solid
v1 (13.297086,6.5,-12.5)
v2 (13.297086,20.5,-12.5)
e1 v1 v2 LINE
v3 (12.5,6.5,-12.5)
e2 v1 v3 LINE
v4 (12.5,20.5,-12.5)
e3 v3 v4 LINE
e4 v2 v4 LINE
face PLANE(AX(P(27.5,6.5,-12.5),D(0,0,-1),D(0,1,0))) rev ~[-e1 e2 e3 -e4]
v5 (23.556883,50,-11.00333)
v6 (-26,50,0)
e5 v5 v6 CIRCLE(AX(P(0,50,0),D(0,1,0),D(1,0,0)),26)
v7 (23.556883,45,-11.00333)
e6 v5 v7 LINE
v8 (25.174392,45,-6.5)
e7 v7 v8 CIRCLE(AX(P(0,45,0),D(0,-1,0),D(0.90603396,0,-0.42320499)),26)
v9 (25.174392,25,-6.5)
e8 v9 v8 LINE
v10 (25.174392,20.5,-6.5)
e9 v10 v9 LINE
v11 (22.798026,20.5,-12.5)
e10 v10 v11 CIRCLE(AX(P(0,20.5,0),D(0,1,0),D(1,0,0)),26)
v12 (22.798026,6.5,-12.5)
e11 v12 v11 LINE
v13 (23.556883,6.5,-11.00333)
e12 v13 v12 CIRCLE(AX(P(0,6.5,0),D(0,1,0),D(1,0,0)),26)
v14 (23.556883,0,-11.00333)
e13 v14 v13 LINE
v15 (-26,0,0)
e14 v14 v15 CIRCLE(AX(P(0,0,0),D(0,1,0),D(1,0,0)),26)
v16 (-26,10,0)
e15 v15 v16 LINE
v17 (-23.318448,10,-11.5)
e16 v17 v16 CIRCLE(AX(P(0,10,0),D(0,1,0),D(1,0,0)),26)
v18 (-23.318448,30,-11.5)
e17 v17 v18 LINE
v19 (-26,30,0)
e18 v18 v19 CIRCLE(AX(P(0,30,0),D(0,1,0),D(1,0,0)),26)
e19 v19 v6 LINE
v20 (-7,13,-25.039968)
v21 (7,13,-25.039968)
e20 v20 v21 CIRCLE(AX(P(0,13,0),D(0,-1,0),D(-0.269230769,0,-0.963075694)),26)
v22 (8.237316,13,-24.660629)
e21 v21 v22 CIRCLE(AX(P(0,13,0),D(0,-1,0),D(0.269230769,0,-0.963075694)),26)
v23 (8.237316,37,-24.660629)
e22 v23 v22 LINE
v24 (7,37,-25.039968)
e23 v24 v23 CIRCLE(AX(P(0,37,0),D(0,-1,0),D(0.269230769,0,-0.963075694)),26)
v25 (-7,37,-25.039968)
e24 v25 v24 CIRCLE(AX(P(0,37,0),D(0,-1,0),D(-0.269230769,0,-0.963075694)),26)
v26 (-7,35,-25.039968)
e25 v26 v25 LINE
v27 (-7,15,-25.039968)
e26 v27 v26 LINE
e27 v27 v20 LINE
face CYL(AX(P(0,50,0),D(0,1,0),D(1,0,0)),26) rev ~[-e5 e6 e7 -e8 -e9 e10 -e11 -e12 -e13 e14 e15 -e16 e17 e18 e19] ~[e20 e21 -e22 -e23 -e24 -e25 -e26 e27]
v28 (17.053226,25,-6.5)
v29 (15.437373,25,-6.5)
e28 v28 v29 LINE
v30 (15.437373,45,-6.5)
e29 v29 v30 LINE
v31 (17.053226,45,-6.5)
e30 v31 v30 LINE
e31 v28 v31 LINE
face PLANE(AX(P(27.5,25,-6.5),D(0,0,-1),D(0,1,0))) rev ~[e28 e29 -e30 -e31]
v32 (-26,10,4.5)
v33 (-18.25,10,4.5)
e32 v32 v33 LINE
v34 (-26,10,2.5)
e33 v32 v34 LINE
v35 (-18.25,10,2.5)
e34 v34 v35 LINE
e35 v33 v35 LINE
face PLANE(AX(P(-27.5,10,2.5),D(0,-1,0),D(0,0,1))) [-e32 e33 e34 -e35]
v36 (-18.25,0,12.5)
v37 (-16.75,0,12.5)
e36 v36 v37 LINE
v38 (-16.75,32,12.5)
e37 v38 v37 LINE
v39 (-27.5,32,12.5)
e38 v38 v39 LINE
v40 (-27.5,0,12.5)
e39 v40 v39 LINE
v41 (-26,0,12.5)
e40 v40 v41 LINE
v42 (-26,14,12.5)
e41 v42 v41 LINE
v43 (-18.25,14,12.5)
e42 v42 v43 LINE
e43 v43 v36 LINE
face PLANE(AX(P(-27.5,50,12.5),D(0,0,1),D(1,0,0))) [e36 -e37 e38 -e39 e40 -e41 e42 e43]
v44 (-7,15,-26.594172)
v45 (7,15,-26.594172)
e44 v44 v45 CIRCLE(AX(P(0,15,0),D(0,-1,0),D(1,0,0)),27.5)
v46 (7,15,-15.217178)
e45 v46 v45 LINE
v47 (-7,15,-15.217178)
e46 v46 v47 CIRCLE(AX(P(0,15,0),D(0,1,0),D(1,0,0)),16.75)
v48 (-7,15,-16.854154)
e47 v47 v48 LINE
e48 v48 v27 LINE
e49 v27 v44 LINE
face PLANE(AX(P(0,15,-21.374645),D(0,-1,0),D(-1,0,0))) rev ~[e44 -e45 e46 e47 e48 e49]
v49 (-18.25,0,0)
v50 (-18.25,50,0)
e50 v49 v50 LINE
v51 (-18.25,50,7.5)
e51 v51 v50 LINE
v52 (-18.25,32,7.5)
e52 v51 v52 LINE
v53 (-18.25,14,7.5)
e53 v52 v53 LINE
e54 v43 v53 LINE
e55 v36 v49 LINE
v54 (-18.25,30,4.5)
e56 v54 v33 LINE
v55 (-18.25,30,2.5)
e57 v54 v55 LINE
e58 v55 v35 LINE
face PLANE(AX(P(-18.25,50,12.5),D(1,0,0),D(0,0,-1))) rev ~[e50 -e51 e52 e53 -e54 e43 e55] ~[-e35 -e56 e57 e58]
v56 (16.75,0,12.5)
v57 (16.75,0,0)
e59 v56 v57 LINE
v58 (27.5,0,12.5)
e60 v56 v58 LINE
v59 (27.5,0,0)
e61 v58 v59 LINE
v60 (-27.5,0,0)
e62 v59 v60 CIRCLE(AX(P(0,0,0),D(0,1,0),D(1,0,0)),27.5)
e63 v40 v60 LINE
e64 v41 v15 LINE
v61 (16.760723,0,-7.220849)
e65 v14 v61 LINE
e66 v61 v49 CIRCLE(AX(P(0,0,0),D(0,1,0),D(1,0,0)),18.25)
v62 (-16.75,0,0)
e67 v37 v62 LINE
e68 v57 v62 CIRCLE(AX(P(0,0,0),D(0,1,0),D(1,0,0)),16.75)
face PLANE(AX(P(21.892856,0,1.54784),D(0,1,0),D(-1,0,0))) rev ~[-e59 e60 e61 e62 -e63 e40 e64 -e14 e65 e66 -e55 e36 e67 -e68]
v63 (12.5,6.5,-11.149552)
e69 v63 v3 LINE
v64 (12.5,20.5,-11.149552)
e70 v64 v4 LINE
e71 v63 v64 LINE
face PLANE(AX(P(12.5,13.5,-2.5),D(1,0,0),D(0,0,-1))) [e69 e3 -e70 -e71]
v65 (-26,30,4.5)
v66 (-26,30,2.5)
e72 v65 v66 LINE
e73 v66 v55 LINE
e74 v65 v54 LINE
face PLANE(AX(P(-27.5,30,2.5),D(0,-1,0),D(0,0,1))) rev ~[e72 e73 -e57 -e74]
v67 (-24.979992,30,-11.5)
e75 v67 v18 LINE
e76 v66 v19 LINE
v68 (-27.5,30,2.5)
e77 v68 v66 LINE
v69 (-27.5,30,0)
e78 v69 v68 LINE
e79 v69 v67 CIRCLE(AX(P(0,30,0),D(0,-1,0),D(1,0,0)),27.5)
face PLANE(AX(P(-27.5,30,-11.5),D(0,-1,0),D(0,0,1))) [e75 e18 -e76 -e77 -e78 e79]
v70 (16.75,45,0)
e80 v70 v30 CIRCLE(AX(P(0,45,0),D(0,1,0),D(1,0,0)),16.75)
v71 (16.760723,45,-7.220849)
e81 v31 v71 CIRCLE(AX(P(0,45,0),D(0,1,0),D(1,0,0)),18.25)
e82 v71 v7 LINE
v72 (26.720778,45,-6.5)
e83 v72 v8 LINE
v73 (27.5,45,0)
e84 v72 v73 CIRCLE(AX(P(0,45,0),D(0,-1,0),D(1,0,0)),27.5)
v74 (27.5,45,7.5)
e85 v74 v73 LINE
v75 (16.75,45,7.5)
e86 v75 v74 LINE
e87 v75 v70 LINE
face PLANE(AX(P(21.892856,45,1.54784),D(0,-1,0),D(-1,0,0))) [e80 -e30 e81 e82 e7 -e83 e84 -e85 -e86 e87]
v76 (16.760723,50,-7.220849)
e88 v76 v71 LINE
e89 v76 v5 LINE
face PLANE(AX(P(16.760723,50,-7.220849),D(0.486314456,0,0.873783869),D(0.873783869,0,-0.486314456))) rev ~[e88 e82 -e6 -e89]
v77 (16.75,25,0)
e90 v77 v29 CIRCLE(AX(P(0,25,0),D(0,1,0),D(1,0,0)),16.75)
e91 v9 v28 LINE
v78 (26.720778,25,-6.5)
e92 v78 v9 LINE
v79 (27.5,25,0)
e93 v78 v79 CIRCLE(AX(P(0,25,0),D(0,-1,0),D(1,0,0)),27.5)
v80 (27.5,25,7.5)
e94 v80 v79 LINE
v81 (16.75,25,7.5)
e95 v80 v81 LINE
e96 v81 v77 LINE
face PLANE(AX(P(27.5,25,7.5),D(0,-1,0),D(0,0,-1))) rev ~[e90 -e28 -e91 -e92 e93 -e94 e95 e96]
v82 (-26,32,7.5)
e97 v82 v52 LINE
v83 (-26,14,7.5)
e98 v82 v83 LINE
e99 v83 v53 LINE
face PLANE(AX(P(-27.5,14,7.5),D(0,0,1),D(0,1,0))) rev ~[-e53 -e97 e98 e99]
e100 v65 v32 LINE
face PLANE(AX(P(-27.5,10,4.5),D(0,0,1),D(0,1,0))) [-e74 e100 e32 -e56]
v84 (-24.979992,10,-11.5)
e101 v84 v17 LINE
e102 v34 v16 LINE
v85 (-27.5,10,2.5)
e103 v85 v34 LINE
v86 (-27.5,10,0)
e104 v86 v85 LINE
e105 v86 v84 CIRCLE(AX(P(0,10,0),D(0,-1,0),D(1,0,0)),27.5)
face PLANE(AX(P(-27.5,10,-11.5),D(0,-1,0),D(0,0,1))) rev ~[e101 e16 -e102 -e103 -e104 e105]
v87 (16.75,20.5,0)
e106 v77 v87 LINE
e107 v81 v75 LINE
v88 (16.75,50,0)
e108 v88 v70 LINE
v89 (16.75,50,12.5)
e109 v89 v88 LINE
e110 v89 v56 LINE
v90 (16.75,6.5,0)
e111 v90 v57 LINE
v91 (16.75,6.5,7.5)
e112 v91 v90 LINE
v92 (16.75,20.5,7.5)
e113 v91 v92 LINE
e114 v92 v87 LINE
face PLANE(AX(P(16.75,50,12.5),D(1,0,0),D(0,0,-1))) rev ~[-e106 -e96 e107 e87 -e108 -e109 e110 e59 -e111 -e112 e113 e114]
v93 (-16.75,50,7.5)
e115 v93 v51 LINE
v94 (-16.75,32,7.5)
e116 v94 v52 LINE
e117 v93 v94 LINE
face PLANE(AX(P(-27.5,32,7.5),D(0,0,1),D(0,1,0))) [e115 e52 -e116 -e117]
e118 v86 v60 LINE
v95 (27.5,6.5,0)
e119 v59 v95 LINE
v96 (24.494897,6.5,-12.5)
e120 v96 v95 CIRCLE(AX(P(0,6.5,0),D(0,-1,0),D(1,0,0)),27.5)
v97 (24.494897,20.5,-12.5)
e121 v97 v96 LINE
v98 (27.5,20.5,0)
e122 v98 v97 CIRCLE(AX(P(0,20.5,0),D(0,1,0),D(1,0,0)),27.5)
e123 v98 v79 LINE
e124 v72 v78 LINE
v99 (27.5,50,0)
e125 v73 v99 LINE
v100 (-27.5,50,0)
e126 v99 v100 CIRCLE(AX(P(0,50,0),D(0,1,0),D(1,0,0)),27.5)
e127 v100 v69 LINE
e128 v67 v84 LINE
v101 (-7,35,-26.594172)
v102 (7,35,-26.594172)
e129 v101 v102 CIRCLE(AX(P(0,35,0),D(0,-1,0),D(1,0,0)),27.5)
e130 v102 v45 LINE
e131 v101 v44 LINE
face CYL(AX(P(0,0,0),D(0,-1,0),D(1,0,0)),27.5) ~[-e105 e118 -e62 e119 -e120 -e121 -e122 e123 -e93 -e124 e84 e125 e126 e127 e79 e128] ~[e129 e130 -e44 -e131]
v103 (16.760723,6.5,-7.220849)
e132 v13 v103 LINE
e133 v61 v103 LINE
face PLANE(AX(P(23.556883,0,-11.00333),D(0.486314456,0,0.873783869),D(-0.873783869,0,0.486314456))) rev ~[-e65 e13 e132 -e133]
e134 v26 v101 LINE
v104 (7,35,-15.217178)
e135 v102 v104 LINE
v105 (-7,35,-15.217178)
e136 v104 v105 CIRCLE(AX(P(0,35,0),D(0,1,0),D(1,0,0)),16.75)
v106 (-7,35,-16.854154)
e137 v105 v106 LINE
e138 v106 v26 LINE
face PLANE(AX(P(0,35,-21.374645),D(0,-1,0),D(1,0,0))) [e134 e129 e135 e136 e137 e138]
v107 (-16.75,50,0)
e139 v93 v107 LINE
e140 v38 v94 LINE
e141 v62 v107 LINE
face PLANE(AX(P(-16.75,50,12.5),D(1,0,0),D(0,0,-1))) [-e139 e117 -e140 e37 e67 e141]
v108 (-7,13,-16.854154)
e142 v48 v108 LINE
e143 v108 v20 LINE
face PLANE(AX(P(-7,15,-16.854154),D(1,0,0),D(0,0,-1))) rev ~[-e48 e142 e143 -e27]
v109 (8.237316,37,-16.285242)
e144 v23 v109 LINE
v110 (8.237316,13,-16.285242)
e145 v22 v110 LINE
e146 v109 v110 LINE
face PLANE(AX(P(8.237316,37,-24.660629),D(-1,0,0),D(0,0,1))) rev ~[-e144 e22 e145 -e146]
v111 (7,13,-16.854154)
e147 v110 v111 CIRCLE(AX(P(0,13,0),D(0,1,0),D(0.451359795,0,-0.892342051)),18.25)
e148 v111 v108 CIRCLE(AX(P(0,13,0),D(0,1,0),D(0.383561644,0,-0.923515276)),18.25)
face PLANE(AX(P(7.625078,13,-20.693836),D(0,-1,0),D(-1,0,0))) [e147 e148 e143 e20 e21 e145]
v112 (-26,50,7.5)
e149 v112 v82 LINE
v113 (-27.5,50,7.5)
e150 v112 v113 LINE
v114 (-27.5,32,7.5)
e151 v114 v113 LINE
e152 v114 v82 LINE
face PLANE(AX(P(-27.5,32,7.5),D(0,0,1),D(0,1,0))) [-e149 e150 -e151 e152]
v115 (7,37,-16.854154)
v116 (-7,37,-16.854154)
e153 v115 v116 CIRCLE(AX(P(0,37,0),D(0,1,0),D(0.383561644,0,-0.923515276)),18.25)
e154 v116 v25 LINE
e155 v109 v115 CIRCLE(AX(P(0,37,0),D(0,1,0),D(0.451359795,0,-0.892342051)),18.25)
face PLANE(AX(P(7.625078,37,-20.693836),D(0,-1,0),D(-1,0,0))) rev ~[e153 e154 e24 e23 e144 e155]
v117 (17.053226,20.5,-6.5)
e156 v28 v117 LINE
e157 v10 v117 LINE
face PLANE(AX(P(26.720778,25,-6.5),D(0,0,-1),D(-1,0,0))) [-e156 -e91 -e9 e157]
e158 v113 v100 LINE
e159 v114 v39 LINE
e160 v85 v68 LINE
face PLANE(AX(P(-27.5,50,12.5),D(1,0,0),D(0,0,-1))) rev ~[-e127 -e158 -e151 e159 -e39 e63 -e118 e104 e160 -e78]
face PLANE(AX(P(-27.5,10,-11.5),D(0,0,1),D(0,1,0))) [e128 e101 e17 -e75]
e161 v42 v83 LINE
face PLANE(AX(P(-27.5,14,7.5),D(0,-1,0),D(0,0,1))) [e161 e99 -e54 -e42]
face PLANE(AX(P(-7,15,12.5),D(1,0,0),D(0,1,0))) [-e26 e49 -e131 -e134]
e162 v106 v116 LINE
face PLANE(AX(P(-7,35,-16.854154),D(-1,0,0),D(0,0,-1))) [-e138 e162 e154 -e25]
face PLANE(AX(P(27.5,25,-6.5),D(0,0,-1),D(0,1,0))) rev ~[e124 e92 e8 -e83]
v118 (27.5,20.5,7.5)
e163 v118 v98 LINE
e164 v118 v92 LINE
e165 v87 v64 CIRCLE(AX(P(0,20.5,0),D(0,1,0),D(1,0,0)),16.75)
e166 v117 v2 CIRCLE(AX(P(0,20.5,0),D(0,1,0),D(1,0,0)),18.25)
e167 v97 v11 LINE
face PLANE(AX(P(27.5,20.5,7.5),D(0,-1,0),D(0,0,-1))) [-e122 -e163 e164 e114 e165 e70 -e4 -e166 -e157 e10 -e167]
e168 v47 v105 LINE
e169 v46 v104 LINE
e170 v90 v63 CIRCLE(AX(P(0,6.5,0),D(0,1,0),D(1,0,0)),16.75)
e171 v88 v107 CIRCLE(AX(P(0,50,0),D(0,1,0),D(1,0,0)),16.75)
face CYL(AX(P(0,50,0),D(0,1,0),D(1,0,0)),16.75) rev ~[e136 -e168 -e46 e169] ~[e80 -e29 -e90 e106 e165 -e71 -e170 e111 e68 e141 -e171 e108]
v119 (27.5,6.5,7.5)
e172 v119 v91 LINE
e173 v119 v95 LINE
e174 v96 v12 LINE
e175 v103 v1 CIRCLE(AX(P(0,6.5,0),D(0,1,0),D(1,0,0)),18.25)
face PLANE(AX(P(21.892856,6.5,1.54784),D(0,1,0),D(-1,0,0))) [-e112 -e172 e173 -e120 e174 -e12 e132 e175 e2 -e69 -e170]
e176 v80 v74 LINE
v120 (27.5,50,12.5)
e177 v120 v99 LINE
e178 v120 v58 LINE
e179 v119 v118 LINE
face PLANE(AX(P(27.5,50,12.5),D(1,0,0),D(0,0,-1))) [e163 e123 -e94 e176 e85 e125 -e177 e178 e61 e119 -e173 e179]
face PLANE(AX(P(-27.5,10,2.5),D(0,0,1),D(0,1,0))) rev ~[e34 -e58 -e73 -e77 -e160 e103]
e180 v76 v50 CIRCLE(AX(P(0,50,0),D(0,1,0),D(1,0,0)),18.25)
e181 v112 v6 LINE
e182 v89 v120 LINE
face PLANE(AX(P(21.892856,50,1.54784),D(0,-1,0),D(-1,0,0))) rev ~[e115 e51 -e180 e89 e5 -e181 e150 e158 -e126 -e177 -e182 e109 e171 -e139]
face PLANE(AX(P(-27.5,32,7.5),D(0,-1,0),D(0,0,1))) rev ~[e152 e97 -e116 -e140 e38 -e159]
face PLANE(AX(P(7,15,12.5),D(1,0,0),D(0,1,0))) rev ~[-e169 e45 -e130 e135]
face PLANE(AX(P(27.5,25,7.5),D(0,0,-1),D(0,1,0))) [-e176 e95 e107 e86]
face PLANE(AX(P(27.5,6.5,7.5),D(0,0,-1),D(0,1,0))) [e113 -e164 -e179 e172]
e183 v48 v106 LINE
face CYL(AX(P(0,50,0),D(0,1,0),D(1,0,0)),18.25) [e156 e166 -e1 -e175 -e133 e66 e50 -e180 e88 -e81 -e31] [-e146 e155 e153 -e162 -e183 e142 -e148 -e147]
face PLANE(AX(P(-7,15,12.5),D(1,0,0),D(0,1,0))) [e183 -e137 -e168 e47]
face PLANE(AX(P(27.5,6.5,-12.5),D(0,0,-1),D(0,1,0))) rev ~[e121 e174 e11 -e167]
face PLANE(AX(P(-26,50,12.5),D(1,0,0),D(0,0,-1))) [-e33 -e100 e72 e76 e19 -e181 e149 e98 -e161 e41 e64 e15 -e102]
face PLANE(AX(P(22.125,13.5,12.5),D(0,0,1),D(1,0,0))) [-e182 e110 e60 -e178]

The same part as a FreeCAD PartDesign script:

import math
import FreeCAD as App
import Part
import Sketcher
from FreeCAD import Vector
Q = App.Units.Quantity

doc = App.newDocument("Part")
body = doc.addObject("PartDesign::Body", "Body")

sketch1 = doc.addObject("Sketcher::SketchObject", "Sketch")
body.addObject(sketch1)
sketch1.AttachmentSupport = (doc.XZ_Plane, [""])
sketch1.MapMode = "FlatFace"
sketch1.addGeometry(Part.Circle(Vector(0, 0, 0), Vector(0, 0, 1), 27.5), False)
sketch1.addConstraint(Sketcher.Constraint("Coincident", 0, 3, -1, 1))
sketch1.addConstraint(Sketcher.Constraint("Diameter", 0, Q("55 mm")))
pad1 = doc.addObject("PartDesign::Pad", "Pad")
body.addObject(pad1)
pad1.Profile = sketch1
pad1.Length = 50
pad1.Reversed = True

sketch2 = doc.addObject("Sketcher::SketchObject", "Sketch001")
body.addObject(sketch2)
sketch2.AttachmentSupport = (doc.XZ_Plane, [""])
sketch2.MapMode = "FlatFace"
sketch2.AttachmentOffset = App.Placement(Vector(0, 0, -50), App.Rotation())
sketch2.addGeometry(Part.Circle(Vector(0, 0, 0), Vector(0, 0, 1), 26), False)
sketch2.addConstraint(Sketcher.Constraint("Coincident", 0, 3, -1, 1))
sketch2.addConstraint(Sketcher.Constraint("Diameter", 0, Q("52 mm")))
pocket1 = doc.addObject("PartDesign::Pocket", "Pocket")
body.addObject(pocket1)
pocket1.Profile = sketch2
pocket1.Type = "ThroughAll"
pocket1.Reversed = True
body2 = doc.addObject("PartDesign::Body", "Body001")

sketch3 = doc.addObject("Sketcher::SketchObject", "Sketch002")
body2.addObject(sketch3)
sketch3.AttachmentSupport = (doc.getObject("XZ_Plane001"), [""])
sketch3.MapMode = "FlatFace"
sketch3.AttachmentOffset = App.Placement(Vector(0, 0, -50), App.Rotation())
sketch3.addGeometry(Part.Circle(Vector(0, 0, 0), Vector(0, 0, 1), 18.25), False)
sketch3.addConstraint(Sketcher.Constraint("Coincident", 0, 3, -1, 1))
sketch3.addConstraint(Sketcher.Constraint("Diameter", 0, Q("36.5 mm")))
pad2 = doc.addObject("PartDesign::Pad", "Pad001")
body2.addObject(pad2)
pad2.Profile = sketch3
pad2.Length = 50

sketch4 = doc.addObject("Sketcher::SketchObject", "Sketch003")
body2.addObject(sketch4)
sketch4.AttachmentSupport = (doc.getObject("XZ_Plane001"), [""])
sketch4.MapMode = "FlatFace"
sketch4.AttachmentOffset = App.Placement(Vector(0, 0, -50), App.Rotation())
sketch4.addGeometry(Part.Circle(Vector(0, 0, 0), Vector(0, 0, 1), 16.75), False)
sketch4.addConstraint(Sketcher.Constraint("Coincident", 0, 3, -1, 1))
sketch4.addConstraint(Sketcher.Constraint("Diameter", 0, Q("33.5 mm")))
pocket2 = doc.addObject("PartDesign::Pocket", "Pocket001")
body2.addObject(pocket2)
pocket2.Profile = sketch4
pocket2.Type = "ThroughAll"
pocket2.Reversed = True
body3 = doc.addObject("PartDesign::Body", "Body002")

sketch5 = doc.addObject("Sketcher::SketchObject", "Sketch004")
body3.addObject(sketch5)
sketch5.AttachmentSupport = (doc.getObject("XZ_Plane002"), [""])
sketch5.MapMode = "FlatFace"
sketch5.AttachmentOffset = App.Placement(Vector(0, 0, -50), App.Rotation())
sketch5.addGeometry(Part.LineSegment(Vector(-30.457731, 0, 0), Vector(-30.457731, 28.516087, 0)), False)
sketch5.addGeometry(Part.LineSegment(Vector(-30.457731, 28.516087, 0), Vector(29.503462, 28.516087, 0)), False)
sketch5.addGeometry(Part.LineSegment(Vector(29.503462, 28.516087, 0), Vector(29.503462, 0, 0)), False)
sketch5.addGeometry(Part.LineSegment(Vector(29.503462, 0, 0), Vector(-30.457731, 0, 0)), False)
sketch5.addConstraint(Sketcher.Constraint("Coincident", 0, 2, 1, 1))
sketch5.addConstraint(Sketcher.Constraint("Coincident", 1, 2, 2, 1))
sketch5.addConstraint(Sketcher.Constraint("Coincident", 2, 2, 3, 1))
sketch5.addConstraint(Sketcher.Constraint("Coincident", 3, 2, 0, 1))
sketch5.addConstraint(Sketcher.Constraint("Vertical", 0))
sketch5.addConstraint(Sketcher.Constraint("Horizontal", 1))
sketch5.addConstraint(Sketcher.Constraint("Vertical", 2))
sketch5.addConstraint(Sketcher.Constraint("Horizontal", 3))
sketch5.addConstraint(Sketcher.Constraint("PointOnObject", 2, 2, -1))
sketch5.addConstraint(Sketcher.Constraint("DistanceX", 1, 1, 1, 2, Q("59.961193 mm")))
sketch5.addConstraint(Sketcher.Constraint("DistanceY", 0, 1, 0, 2, Q("28.516087 mm")))
sketch5.addConstraint(Sketcher.Constraint("DistanceX", 0, 2, -1, 1, Q("30.457731 mm")))
pad3 = doc.addObject("PartDesign::Pad", "Pad002")
body3.addObject(pad3)
pad3.Profile = sketch5
pad3.Length = 51
doc.recompute()

body4 = doc.addObject("PartDesign::Body", "Body003")
body4.BaseFeature = body3
boolean = doc.addObject("PartDesign::Boolean", "Boolean")
body.addObject(boolean)
boolean.Type = "Cut"
boolean.addObjects([body4])
doc.recompute()

boolean2 = doc.addObject("PartDesign::Boolean", "Boolean001")
body2.addObject(boolean2)
boolean2.Type = "Cut"
boolean2.addObjects([body3])
body.AllowCompound = True
doc.recompute()

boolean3 = doc.addObject("PartDesign::Boolean", "Boolean002")
body.addObject(boolean3)
boolean3.Type = "Fuse"
boolean3.addObjects([body2])

sketch6 = doc.addObject("Sketcher::SketchObject", "Sketch005")
body.addObject(sketch6)
sketch6.AttachmentSupport = (doc.XZ_Plane, [""])
sketch6.MapMode = "FlatFace"
sketch6.AttachmentOffset = App.Placement(Vector(0, 0, -50), App.Rotation())
sketch6.addGeometry(Part.LineSegment(Vector(-27.5, 0, 0), Vector(-27.5, 12.5, 0)), False)
sketch6.addGeometry(Part.LineSegment(Vector(-27.5, 12.5, 0), Vector(-26, 12.5, 0)), False)
sketch6.addGeometry(Part.LineSegment(Vector(-26, 12.5, 0), Vector(-26, 0, 0)), False)
sketch6.addGeometry(Part.LineSegment(Vector(-26, 0, 0), Vector(-27.5, 0, 0)), False)
sketch6.addGeometry(Part.LineSegment(Vector(-18.25, 0, 0), Vector(-18.25, 12.5, 0)), False)
sketch6.addGeometry(Part.LineSegment(Vector(-18.25, 12.5, 0), Vector(-16.75, 12.5, 0)), False)
sketch6.addGeometry(Part.LineSegment(Vector(-16.75, 12.5, 0), Vector(-16.75, 0, 0)), False)
sketch6.addGeometry(Part.LineSegment(Vector(-16.75, 0, 0), Vector(-18.25, 0, 0)), False)
sketch6.addGeometry(Part.LineSegment(Vector(16.75, 0, 0), Vector(16.75, 12.5, 0)), False)
sketch6.addGeometry(Part.LineSegment(Vector(16.75, 12.5, 0), Vector(18.25, 12.5, 0)), False)
sketch6.addGeometry(Part.LineSegment(Vector(18.25, 12.5, 0), Vector(18.25, 0, 0)), False)
sketch6.addGeometry(Part.LineSegment(Vector(18.25, 0, 0), Vector(16.75, 0, 0)), False)
sketch6.addGeometry(Part.LineSegment(Vector(26, 0, 0), Vector(26, 12.5, 0)), False)
sketch6.addGeometry(Part.LineSegment(Vector(26, 12.5, 0), Vector(27.5, 12.5, 0)), False)
sketch6.addGeometry(Part.LineSegment(Vector(27.5, 12.5, 0), Vector(27.5, 0, 0)), False)
sketch6.addGeometry(Part.LineSegment(Vector(27.5, 0, 0), Vector(26, 0, 0)), False)
sketch6.addConstraint(Sketcher.Constraint("Coincident", 0, 2, 1, 1))
sketch6.addConstraint(Sketcher.Constraint("Coincident", 1, 2, 2, 1))
sketch6.addConstraint(Sketcher.Constraint("Coincident", 2, 2, 3, 1))
sketch6.addConstraint(Sketcher.Constraint("Coincident", 3, 2, 0, 1))
sketch6.addConstraint(Sketcher.Constraint("Coincident", 4, 2, 5, 1))
sketch6.addConstraint(Sketcher.Constraint("Coincident", 5, 2, 6, 1))
sketch6.addConstraint(Sketcher.Constraint("Coincident", 6, 2, 7, 1))
sketch6.addConstraint(Sketcher.Constraint("Coincident", 7, 2, 4, 1))
sketch6.addConstraint(Sketcher.Constraint("Coincident", 8, 2, 9, 1))
sketch6.addConstraint(Sketcher.Constraint("Coincident", 9, 2, 10, 1))
sketch6.addConstraint(Sketcher.Constraint("Coincident", 10, 2, 11, 1))
sketch6.addConstraint(Sketcher.Constraint("Coincident", 11, 2, 8, 1))
sketch6.addConstraint(Sketcher.Constraint("Coincident", 12, 2, 13, 1))
sketch6.addConstraint(Sketcher.Constraint("Coincident", 13, 2, 14, 1))
sketch6.addConstraint(Sketcher.Constraint("Coincident", 14, 2, 15, 1))
sketch6.addConstraint(Sketcher.Constraint("Coincident", 15, 2, 12, 1))
sketch6.addConstraint(Sketcher.Constraint("Vertical", 0))
sketch6.addConstraint(Sketcher.Constraint("Horizontal", 1))
sketch6.addConstraint(Sketcher.Constraint("Vertical", 2))
sketch6.addConstraint(Sketcher.Constraint("Horizontal", 3))
sketch6.addConstraint(Sketcher.Constraint("Vertical", 4))
sketch6.addConstraint(Sketcher.Constraint("Horizontal", 5))
sketch6.addConstraint(Sketcher.Constraint("Vertical", 6))
sketch6.addConstraint(Sketcher.Constraint("Horizontal", 7))
sketch6.addConstraint(Sketcher.Constraint("Vertical", 8))
sketch6.addConstraint(Sketcher.Constraint("Horizontal", 9))
sketch6.addConstraint(Sketcher.Constraint("Vertical", 10))
sketch6.addConstraint(Sketcher.Constraint("Horizontal", 11))
sketch6.addConstraint(Sketcher.Constraint("Vertical", 12))
sketch6.addConstraint(Sketcher.Constraint("Horizontal", 13))
sketch6.addConstraint(Sketcher.Constraint("Vertical", 14))
sketch6.addConstraint(Sketcher.Constraint("Horizontal", 15))
sketch6.addConstraint(Sketcher.Constraint("Symmetric", 7, 2, 10, 2, -1, 1))
sketch6.addConstraint(Sketcher.Constraint("Symmetric", 3, 2, 14, 2, -1, 1))
sketch6.addConstraint(Sketcher.Constraint("Symmetric", 5, 2, 8, 2, -2))
sketch6.addConstraint(Sketcher.Constraint("Symmetric", 1, 2, 12, 2, -2))
sketch6.addConstraint(Sketcher.Constraint("PointOnObject", 2, 2, -1))
sketch6.addConstraint(Sketcher.Constraint("PointOnObject", 6, 2, -1))
sketch6.addConstraint(Sketcher.Constraint("Horizontal", 1, 2, 4, 2))
sketch6.addConstraint(Sketcher.Constraint("Equal", 3, 5))
sketch6.addConstraint(Sketcher.Constraint("DistanceX", 1, 1, 1, 2, Q("1.5 mm")))
sketch6.addConstraint(Sketcher.Constraint("DistanceY", 0, 1, 0, 2, Q("12.5 mm")))
sketch6.addConstraint(Sketcher.Constraint("DistanceX", 1, 2, -1, 1, Q("26 mm")))
sketch6.addConstraint(Sketcher.Constraint("DistanceX", 4, 2, 8, 2, Q("35 mm")))
pad4 = doc.addObject("PartDesign::Pad", "Pad003")
body.addObject(pad4)
pad4.Profile = sketch6
pad4.Length = 50

sketch7 = doc.addObject("Sketcher::SketchObject", "Sketch006")
body.addObject(sketch7)
sketch7.AttachmentSupport = (doc.XZ_Plane, [""])
sketch7.MapMode = "FlatFace"
sketch7.AttachmentOffset = App.Placement(Vector(0, 0, -50), App.Rotation())
sketch7.addGeometry(Part.LineSegment(Vector(23.556883, -11.00333, 0), Vector(16.760723, -7.220849, 0)), False)
sketch7.addGeometry(Part.ArcOfCircle(Part.Circle(Vector(0, 0, 0), Vector(0, 0, 1), 18.25), math.radians(-23.307327), math.radians(0)), False)
sketch7.addGeometry(Part.LineSegment(Vector(18.25, 0, 0), Vector(18.25, 12.5, 0)), False)
sketch7.addGeometry(Part.LineSegment(Vector(18.25, 12.5, 0), Vector(26, 12.5, 0)), False)
sketch7.addGeometry(Part.LineSegment(Vector(26, 12.5, 0), Vector(26, 0, 0)), False)
sketch7.addGeometry(Part.ArcOfCircle(Part.Circle(Vector(0, 0, 0), Vector(0, 0, 1), 26), math.radians(-25.037098), math.radians(0)), False)
sketch7.addConstraint(Sketcher.Constraint("Coincident", 0, 2, 1, 1))
sketch7.addConstraint(Sketcher.Constraint("Tangent", 1, 2, 2, 1))
sketch7.addConstraint(Sketcher.Constraint("Coincident", 2, 2, 3, 1))
sketch7.addConstraint(Sketcher.Constraint("Coincident", 3, 2, 4, 1))
sketch7.addConstraint(Sketcher.Constraint("Tangent", 4, 2, 5, 2))
sketch7.addConstraint(Sketcher.Constraint("Coincident", 5, 1, 0, 1))
sketch7.addConstraint(Sketcher.Constraint("Vertical", 2))
sketch7.addConstraint(Sketcher.Constraint("Horizontal", 3))
sketch7.addConstraint(Sketcher.Constraint("Vertical", 4))
sketch7.addConstraint(Sketcher.Constraint("Coincident", 1, 3, -1, 1))
sketch7.addConstraint(Sketcher.Constraint("Coincident", 5, 3, -1, 1))
sketch7.addConstraint(Sketcher.Constraint("Radius", 5, Q("26 mm")))
sketch7.addConstraint(Sketcher.Constraint("Radius", 1, Q("18.25 mm")))
sketch7.addConstraint(Sketcher.Constraint("DistanceY", 2, 1, 2, 2, Q("12.5 mm")))
sketch7.addConstraint(Sketcher.Constraint("Distance", 0, Q("7.77785 mm")))
sketch7.addConstraint(Sketcher.Constraint("DistanceY", 0, 2, -1, 1, Q("7.220849 mm")))
pad5 = doc.addObject("PartDesign::Pad", "Pad004")
body.addObject(pad5)
pad5.Profile = sketch7
pad5.Length = 5

sketch8 = doc.addObject("Sketcher::SketchObject", "Sketch007")
body.addObject(sketch8)
sketch8.AttachmentSupport = (doc.XZ_Plane, [""])
sketch8.MapMode = "FlatFace"
sketch8.addGeometry(Part.LineSegment(Vector(18.25, 12.5, 0), Vector(18.25, 0, 0)), False)
sketch8.addGeometry(Part.ArcOfCircle(Part.Circle(Vector(0, 0, 0), Vector(0, 0, 1), 18.25), math.radians(-23.307327), math.radians(0)), False)
sketch8.addGeometry(Part.LineSegment(Vector(16.760723, -7.220849, 0), Vector(23.556883, -11.00333, 0)), False)
sketch8.addGeometry(Part.ArcOfCircle(Part.Circle(Vector(0, 0, 0), Vector(0, 0, 1), 26), math.radians(-25.037098), math.radians(0)), False)
sketch8.addGeometry(Part.LineSegment(Vector(26, 0, 0), Vector(26, 12.5, 0)), False)
sketch8.addGeometry(Part.LineSegment(Vector(26, 12.5, 0), Vector(18.25, 12.5, 0)), False)
sketch8.addConstraint(Sketcher.Constraint("Tangent", 0, 2, 1, 2))
sketch8.addConstraint(Sketcher.Constraint("Coincident", 1, 1, 2, 1))
sketch8.addConstraint(Sketcher.Constraint("Coincident", 2, 2, 3, 1))
sketch8.addConstraint(Sketcher.Constraint("Tangent", 3, 2, 4, 1))
sketch8.addConstraint(Sketcher.Constraint("Coincident", 4, 2, 5, 1))
sketch8.addConstraint(Sketcher.Constraint("Coincident", 5, 2, 0, 1))
sketch8.addConstraint(Sketcher.Constraint("Vertical", 0))
sketch8.addConstraint(Sketcher.Constraint("Vertical", 4))
sketch8.addConstraint(Sketcher.Constraint("Horizontal", 5))
sketch8.addConstraint(Sketcher.Constraint("Coincident", 1, 3, -1, 1))
sketch8.addConstraint(Sketcher.Constraint("Coincident", 3, 3, -1, 1))
sketch8.addConstraint(Sketcher.Constraint("Radius", 3, Q("26 mm")))
sketch8.addConstraint(Sketcher.Constraint("Radius", 1, Q("18.25 mm")))
sketch8.addConstraint(Sketcher.Constraint("DistanceY", 0, 2, 0, 1, Q("12.5 mm")))
sketch8.addConstraint(Sketcher.Constraint("Distance", 2, Q("7.77785 mm")))
sketch8.addConstraint(Sketcher.Constraint("DistanceY", 1, 1, -1, 1, Q("7.220849 mm")))
pad6 = doc.addObject("PartDesign::Pad", "Pad005")
body.addObject(pad6)
pad6.Profile = sketch8
pad6.Length = 6.5
pad6.Reversed = True

sketch9 = doc.addObject("Sketcher::SketchObject", "Sketch008")
body.addObject(sketch9)
sketch9.AttachmentSupport = (doc.YZ_Plane, [""])
sketch9.MapMode = "FlatFace"
sketch9.AttachmentOffset = App.Placement(Vector(0, 0, 27.5), App.Rotation())
sketch9.addGeometry(Part.LineSegment(Vector(45, 7.5, 0), Vector(25, 7.5, 0)), False)
sketch9.addGeometry(Part.LineSegment(Vector(25, 7.5, 0), Vector(25, -6.5, 0)), False)
sketch9.addGeometry(Part.LineSegment(Vector(25, -6.5, 0), Vector(45, -6.5, 0)), False)
sketch9.addGeometry(Part.LineSegment(Vector(45, -6.5, 0), Vector(45, 7.5, 0)), False)
sketch9.addGeometry(Part.LineSegment(Vector(20.5, 7.5, 0), Vector(6.5, 7.5, 0)), False)
sketch9.addGeometry(Part.LineSegment(Vector(6.5, 7.5, 0), Vector(6.5, -12.5, 0)), False)
sketch9.addGeometry(Part.LineSegment(Vector(6.5, -12.5, 0), Vector(20.5, -12.5, 0)), False)
sketch9.addGeometry(Part.LineSegment(Vector(20.5, -12.5, 0), Vector(20.5, 7.5, 0)), False)
sketch9.addConstraint(Sketcher.Constraint("Coincident", 0, 2, 1, 1))
sketch9.addConstraint(Sketcher.Constraint("Coincident", 1, 2, 2, 1))
sketch9.addConstraint(Sketcher.Constraint("Coincident", 2, 2, 3, 1))
sketch9.addConstraint(Sketcher.Constraint("Coincident", 3, 2, 0, 1))
sketch9.addConstraint(Sketcher.Constraint("Coincident", 4, 2, 5, 1))
sketch9.addConstraint(Sketcher.Constraint("Coincident", 5, 2, 6, 1))
sketch9.addConstraint(Sketcher.Constraint("Coincident", 6, 2, 7, 1))
sketch9.addConstraint(Sketcher.Constraint("Coincident", 7, 2, 4, 1))
sketch9.addConstraint(Sketcher.Constraint("Horizontal", 0))
sketch9.addConstraint(Sketcher.Constraint("Vertical", 1))
sketch9.addConstraint(Sketcher.Constraint("Horizontal", 2))
sketch9.addConstraint(Sketcher.Constraint("Vertical", 3))
sketch9.addConstraint(Sketcher.Constraint("Horizontal", 4))
sketch9.addConstraint(Sketcher.Constraint("Vertical", 5))
sketch9.addConstraint(Sketcher.Constraint("Horizontal", 6))
sketch9.addConstraint(Sketcher.Constraint("Vertical", 7))
sketch9.addConstraint(Sketcher.Constraint("Horizontal", 3, 2, 4, 2))
sketch9.addConstraint(Sketcher.Constraint("Equal", 6, 1))
sketch9.addConstraint(Sketcher.Constraint("Equal", 2, 5))
sketch9.addConstraint(Sketcher.Constraint("DistanceX", 0, 2, 0, 1, Q("20 mm")))
sketch9.addConstraint(Sketcher.Constraint("DistanceX", 4, 2, 4, 1, Q("14 mm")))
sketch9.addConstraint(Sketcher.Constraint("DistanceX", -1, 1, 0, 2, Q("25 mm")))
sketch9.addConstraint(Sketcher.Constraint("DistanceY", -1, 1, 0, 2, Q("7.5 mm")))
sketch9.addConstraint(Sketcher.Constraint("DistanceX", -1, 1, 4, 2, Q("6.5 mm")))
pocket3 = doc.addObject("PartDesign::Pocket", "Pocket002")
body.addObject(pocket3)
pocket3.Profile = sketch9
pocket3.Length = 15

sketch10 = doc.addObject("Sketcher::SketchObject", "Sketch009")
body.addObject(sketch10)
sketch10.AttachmentSupport = (doc.XY_Plane, [""])
sketch10.MapMode = "FlatFace"
sketch10.AttachmentOffset = App.Placement(Vector(0, 0, 12.5), App.Rotation())
sketch10.addGeometry(Part.LineSegment(Vector(-7, 35, 0), Vector(-7, 15, 0)), False)
sketch10.addGeometry(Part.LineSegment(Vector(-7, 15, 0), Vector(7, 15, 0)), False)
sketch10.addGeometry(Part.LineSegment(Vector(7, 15, 0), Vector(7, 35, 0)), False)
sketch10.addGeometry(Part.LineSegment(Vector(7, 35, 0), Vector(-7, 35, 0)), False)
sketch10.addConstraint(Sketcher.Constraint("Coincident", 0, 2, 1, 1))
sketch10.addConstraint(Sketcher.Constraint("Coincident", 1, 2, 2, 1))
sketch10.addConstraint(Sketcher.Constraint("Coincident", 2, 2, 3, 1))
sketch10.addConstraint(Sketcher.Constraint("Coincident", 3, 2, 0, 1))
sketch10.addConstraint(Sketcher.Constraint("Vertical", 0))
sketch10.addConstraint(Sketcher.Constraint("Horizontal", 1))
sketch10.addConstraint(Sketcher.Constraint("Vertical", 2))
sketch10.addConstraint(Sketcher.Constraint("Horizontal", 3))
sketch10.addConstraint(Sketcher.Constraint("DistanceX", 1, 1, 1, 2, Q("14 mm")))
sketch10.addConstraint(Sketcher.Constraint("DistanceY", 0, 2, 0, 1, Q("20 mm")))
sketch10.addConstraint(Sketcher.Constraint("DistanceX", 0, 2, -1, 1, Q("7 mm")))
sketch10.addConstraint(Sketcher.Constraint("DistanceY", -1, 1, 0, 2, Q("15 mm")))
pocket4 = doc.addObject("PartDesign::Pocket", "Pocket003")
body.addObject(pocket4)
pocket4.Profile = sketch10
pocket4.Length = 45

sketch11 = doc.addObject("Sketcher::SketchObject", "Sketch010")
body.addObject(sketch11)
sketch11.AttachmentSupport = (doc.YZ_Plane, [""])
sketch11.MapMode = "FlatFace"
sketch11.AttachmentOffset = App.Placement(Vector(0, 0, -27.5), App.Rotation())
sketch11.addGeometry(Part.LineSegment(Vector(54.235613, 7.5, 0), Vector(32, 7.5, 0)), False)
sketch11.addGeometry(Part.LineSegment(Vector(32, 7.5, 0), Vector(32, 24.105879, 0)), False)
sketch11.addGeometry(Part.LineSegment(Vector(32, 24.105879, 0), Vector(54.235613, 24.105879, 0)), False)
sketch11.addGeometry(Part.LineSegment(Vector(54.235613, 24.105879, 0), Vector(54.235613, 7.5, 0)), False)
sketch11.addConstraint(Sketcher.Constraint("Coincident", 0, 2, 1, 1))
sketch11.addConstraint(Sketcher.Constraint("Coincident", 1, 2, 2, 1))
sketch11.addConstraint(Sketcher.Constraint("Coincident", 2, 2, 3, 1))
sketch11.addConstraint(Sketcher.Constraint("Coincident", 3, 2, 0, 1))
sketch11.addConstraint(Sketcher.Constraint("Horizontal", 0))
sketch11.addConstraint(Sketcher.Constraint("Vertical", 1))
sketch11.addConstraint(Sketcher.Constraint("Horizontal", 2))
sketch11.addConstraint(Sketcher.Constraint("Vertical", 3))
sketch11.addConstraint(Sketcher.Constraint("DistanceX", -1, 1, 0, 2, Q("32 mm")))
sketch11.addConstraint(Sketcher.Constraint("DistanceY", -1, 1, 0, 2, Q("7.5 mm")))
sketch11.addConstraint(Sketcher.Constraint("DistanceY", 1, 1, 1, 2, Q("16.605879 mm")))
sketch11.addConstraint(Sketcher.Constraint("DistanceX", 0, 2, 0, 1, Q("22.235613 mm")))
pocket5 = doc.addObject("PartDesign::Pocket", "Pocket004")
body.addObject(pocket5)
pocket5.Profile = sketch11
pocket5.Length = 15
pocket5.Reversed = True

sketch12 = doc.addObject("Sketcher::SketchObject", "Sketch011")
body.addObject(sketch12)
sketch12.AttachmentSupport = (doc.XZ_Plane, [""])
sketch12.MapMode = "FlatFace"
sketch12.AttachmentOffset = App.Placement(Vector(0, 0, -25), App.Rotation())
sketch12.addGeometry(Part.LineSegment(Vector(26.720778, -6.5, 0), Vector(17.053226, -6.5, 0)), False)
sketch12.addGeometry(Part.ArcOfCircle(Part.Circle(Vector(0, 0, 0), Vector(0, 0, 1), 18.25), math.radians(-20.864824), math.radians(0)), False)
sketch12.addGeometry(Part.LineSegment(Vector(18.25, 0, 0), Vector(18.25, 7.5, 0)), False)
sketch12.addGeometry(Part.LineSegment(Vector(18.25, 7.5, 0), Vector(27.5, 7.5, 0)), False)
sketch12.addGeometry(Part.LineSegment(Vector(27.5, 7.5, 0), Vector(27.5, 0, 0)), False)
sketch12.addGeometry(Part.ArcOfCircle(Part.Circle(Vector(0, 0, 0), Vector(0, 0, 1), 27.5), math.radians(-13.672018), math.radians(0)), False)
sketch12.addConstraint(Sketcher.Constraint("Coincident", 0, 2, 1, 1))
sketch12.addConstraint(Sketcher.Constraint("Tangent", 1, 2, 2, 1))
sketch12.addConstraint(Sketcher.Constraint("Coincident", 2, 2, 3, 1))
sketch12.addConstraint(Sketcher.Constraint("Coincident", 3, 2, 4, 1))
sketch12.addConstraint(Sketcher.Constraint("Tangent", 4, 2, 5, 2))
sketch12.addConstraint(Sketcher.Constraint("Coincident", 5, 1, 0, 1))
sketch12.addConstraint(Sketcher.Constraint("Horizontal", 0))
sketch12.addConstraint(Sketcher.Constraint("Vertical", 2))
sketch12.addConstraint(Sketcher.Constraint("Horizontal", 3))
sketch12.addConstraint(Sketcher.Constraint("Vertical", 4))
sketch12.addConstraint(Sketcher.Constraint("Coincident", 1, 3, -1, 1))
sketch12.addConstraint(Sketcher.Constraint("Coincident", 5, 3, -1, 1))
sketch12.addConstraint(Sketcher.Constraint("Radius", 5, Q("27.5 mm")))
sketch12.addConstraint(Sketcher.Constraint("Radius", 1, Q("18.25 mm")))
sketch12.addConstraint(Sketcher.Constraint("DistanceY", 2, 1, 2, 2, Q("7.5 mm")))
sketch12.addConstraint(Sketcher.Constraint("DistanceY", 0, 2, 2, 2, Q("14 mm")))
pad7 = doc.addObject("PartDesign::Pad", "Pad006")
body.addObject(pad7)
pad7.Profile = sketch12
pad7.Length = 4.5

sketch13 = doc.addObject("Sketcher::SketchObject", "Sketch012")
body.addObject(sketch13)
sketch13.AttachmentSupport = (doc.XZ_Plane, [""])
sketch13.MapMode = "FlatFace"
sketch13.AttachmentOffset = App.Placement(Vector(0, 0, -35), App.Rotation())
sketch13.addGeometry(Part.LineSegment(Vector(-7, -16.854154, 0), Vector(-7, -25.039968, 0)), False)
sketch13.addGeometry(Part.ArcOfCircle(Part.Circle(Vector(0, 0, 0), Vector(0, 0, 1), 26), math.radians(-105.618498), math.radians(-74.381502)), False)
sketch13.addGeometry(Part.LineSegment(Vector(7, -25.039968, 0), Vector(7, -16.854154, 0)), False)
sketch13.addGeometry(Part.ArcOfCircle(Part.Circle(Vector(0, 0, 0), Vector(0, 0, 1), 18.25), math.radians(-112.554474), math.radians(-67.445526)), False)
sketch13.addConstraint(Sketcher.Constraint("Coincident", 0, 2, 1, 1))
sketch13.addConstraint(Sketcher.Constraint("Coincident", 1, 2, 2, 1))
sketch13.addConstraint(Sketcher.Constraint("Coincident", 2, 2, 3, 2))
sketch13.addConstraint(Sketcher.Constraint("Coincident", 3, 1, 0, 1))
sketch13.addConstraint(Sketcher.Constraint("Vertical", 0))
sketch13.addConstraint(Sketcher.Constraint("Vertical", 2))
sketch13.addConstraint(Sketcher.Constraint("Coincident", 1, 3, -1, 1))
sketch13.addConstraint(Sketcher.Constraint("Coincident", 3, 3, -1, 1))
sketch13.addConstraint(Sketcher.Constraint("Horizontal", 0, 2, 1, 2))
sketch13.addConstraint(Sketcher.Constraint("Radius", 1, Q("26 mm")))
sketch13.addConstraint(Sketcher.Constraint("Radius", 3, Q("18.25 mm")))
sketch13.addConstraint(Sketcher.Constraint("DistanceX", 0, 2, -1, 1, Q("7 mm")))
pad8 = doc.addObject("PartDesign::Pad", "Pad007")
body.addObject(pad8)
pad8.Profile = sketch13
pad8.Length = 2
pad8.Reversed = True

sketch14 = doc.addObject("Sketcher::SketchObject", "Sketch013")
body.addObject(sketch14)
sketch14.AttachmentSupport = (doc.XZ_Plane, [""])
sketch14.MapMode = "FlatFace"
sketch14.AttachmentOffset = App.Placement(Vector(0, 0, -15), App.Rotation())
sketch14.addGeometry(Part.LineSegment(Vector(7, -16.854154, 0), Vector(7, -25.039968, 0)), False)
sketch14.addGeometry(Part.ArcOfCircle(Part.Circle(Vector(0, 0, 0), Vector(0, 0, 1), 26), math.radians(-105.618498), math.radians(-74.381502)), False)
sketch14.addGeometry(Part.LineSegment(Vector(-7, -25.039968, 0), Vector(-7, -16.854154, 0)), False)
sketch14.addGeometry(Part.ArcOfCircle(Part.Circle(Vector(0, 0, 0), Vector(0, 0, 1), 18.25), math.radians(-112.554474), math.radians(-67.445526)), False)
sketch14.addConstraint(Sketcher.Constraint("Coincident", 0, 2, 1, 2))
sketch14.addConstraint(Sketcher.Constraint("Coincident", 1, 1, 2, 1))
sketch14.addConstraint(Sketcher.Constraint("Coincident", 2, 2, 3, 1))
sketch14.addConstraint(Sketcher.Constraint("Coincident", 3, 2, 0, 1))
sketch14.addConstraint(Sketcher.Constraint("Vertical", 0))
sketch14.addConstraint(Sketcher.Constraint("Vertical", 2))
sketch14.addConstraint(Sketcher.Constraint("Coincident", 1, 3, -1, 1))
sketch14.addConstraint(Sketcher.Constraint("Coincident", 3, 3, -1, 1))
sketch14.addConstraint(Sketcher.Constraint("Horizontal", 0, 2, 1, 1))
sketch14.addConstraint(Sketcher.Constraint("Radius", 1, Q("26 mm")))
sketch14.addConstraint(Sketcher.Constraint("Radius", 3, Q("18.25 mm")))
sketch14.addConstraint(Sketcher.Constraint("DistanceX", -1, 1, 0, 2, Q("7 mm")))
pad9 = doc.addObject("PartDesign::Pad", "Pad008")
body.addObject(pad9)
pad9.Profile = sketch14
pad9.Length = 2

sketch15 = doc.addObject("Sketcher::SketchObject", "Sketch014")
body.addObject(sketch15)
sketch15.AttachmentSupport = (doc.XZ_Plane, [""])
sketch15.MapMode = "FlatFace"
sketch15.AttachmentOffset = App.Placement(Vector(0, 0, -37), App.Rotation())
sketch15.addGeometry(Part.LineSegment(Vector(8.237316, -16.285242, 0), Vector(8.237316, -24.660629, 0)), False)
sketch15.addGeometry(Part.ArcOfCircle(Part.Circle(Vector(0, 0, 0), Vector(0, 0, 1), 26), math.radians(-74.381502), math.radians(-71.529288)), False)
sketch15.addGeometry(Part.LineSegment(Vector(7, -25.039968, 0), Vector(7, -16.854154, 0)), False)
sketch15.addGeometry(Part.ArcOfCircle(Part.Circle(Vector(0, 0, 0), Vector(0, 0, 1), 18.25), math.radians(-67.445526), math.radians(-63.16904)), False)
sketch15.addConstraint(Sketcher.Constraint("Coincident", 0, 2, 1, 2))
sketch15.addConstraint(Sketcher.Constraint("Coincident", 1, 1, 2, 1))
sketch15.addConstraint(Sketcher.Constraint("Coincident", 2, 2, 3, 1))
sketch15.addConstraint(Sketcher.Constraint("Coincident", 3, 2, 0, 1))
sketch15.addConstraint(Sketcher.Constraint("Vertical", 0))
sketch15.addConstraint(Sketcher.Constraint("Vertical", 2))
sketch15.addConstraint(Sketcher.Constraint("Coincident", 1, 3, -1, 1))
sketch15.addConstraint(Sketcher.Constraint("Coincident", 3, 3, -1, 1))
sketch15.addConstraint(Sketcher.Constraint("Radius", 1, Q("26 mm")))
sketch15.addConstraint(Sketcher.Constraint("Radius", 3, Q("18.25 mm")))
sketch15.addConstraint(Sketcher.Constraint("DistanceX", -1, 1, 1, 1, Q("7 mm")))
sketch15.addConstraint(Sketcher.Constraint("DistanceY", 0, 2, 0, 1, Q("8.375387 mm")))
pad10 = doc.addObject("PartDesign::Pad", "Pad009")
body.addObject(pad10)
pad10.Profile = sketch15
pad10.Length = 24

sketch16 = doc.addObject("Sketcher::SketchObject", "Sketch015")
body.addObject(sketch16)
sketch16.AttachmentSupport = (doc.YZ_Plane, [""])
sketch16.MapMode = "FlatFace"
sketch16.AttachmentOffset = App.Placement(Vector(0, 0, 27.5), App.Rotation())
sketch16.addGeometry(Part.LineSegment(Vector(45, 7.5, 0), Vector(45, 12.5, 0)), False)
sketch16.addGeometry(Part.LineSegment(Vector(45, 12.5, 0), Vector(20.5, 12.5, 0)), False)
sketch16.addGeometry(Part.LineSegment(Vector(20.5, 12.5, 0), Vector(20.5, 7.5, 0)), False)
sketch16.addGeometry(Part.LineSegment(Vector(20.5, 7.5, 0), Vector(45, 7.5, 0)), False)
sketch16.addConstraint(Sketcher.Constraint("Coincident", 0, 2, 1, 1))
sketch16.addConstraint(Sketcher.Constraint("Coincident", 1, 2, 2, 1))
sketch16.addConstraint(Sketcher.Constraint("Coincident", 2, 2, 3, 1))
sketch16.addConstraint(Sketcher.Constraint("Coincident", 3, 2, 0, 1))
sketch16.addConstraint(Sketcher.Constraint("Vertical", 0))
sketch16.addConstraint(Sketcher.Constraint("Horizontal", 1))
sketch16.addConstraint(Sketcher.Constraint("Vertical", 2))
sketch16.addConstraint(Sketcher.Constraint("Horizontal", 3))
sketch16.addConstraint(Sketcher.Constraint("DistanceY", 0, 1, 0, 2, Q("5 mm")))
sketch16.addConstraint(Sketcher.Constraint("DistanceX", 1, 2, 1, 1, Q("24.5 mm")))
sketch16.addConstraint(Sketcher.Constraint("DistanceX", -1, 1, 0, 2, Q("45 mm")))
sketch16.addConstraint(Sketcher.Constraint("DistanceY", -1, 1, 0, 2, Q("12.5 mm")))
pad11 = doc.addObject("PartDesign::Pad", "Pad010")
body.addObject(pad11)
pad11.Profile = sketch16
pad11.Length = 10
pad11.Reversed = True

sketch17 = doc.addObject("Sketcher::SketchObject", "Sketch016")
body.addObject(sketch17)
sketch17.AttachmentSupport = (doc.YZ_Plane, [""])
sketch17.MapMode = "FlatFace"
sketch17.AttachmentOffset = App.Placement(Vector(0, 0, -27.5), App.Rotation())
sketch17.addGeometry(Part.LineSegment(Vector(32, 7.5, 0), Vector(14, 7.5, 0)), False)
sketch17.addGeometry(Part.LineSegment(Vector(14, 7.5, 0), Vector(14, 12.5, 0)), False)
sketch17.addGeometry(Part.LineSegment(Vector(14, 12.5, 0), Vector(32, 12.5, 0)), False)
sketch17.addGeometry(Part.LineSegment(Vector(32, 12.5, 0), Vector(32, 7.5, 0)), False)
sketch17.addConstraint(Sketcher.Constraint("Coincident", 0, 2, 1, 1))
sketch17.addConstraint(Sketcher.Constraint("Coincident", 1, 2, 2, 1))
sketch17.addConstraint(Sketcher.Constraint("Coincident", 2, 2, 3, 1))
sketch17.addConstraint(Sketcher.Constraint("Coincident", 3, 2, 0, 1))
sketch17.addConstraint(Sketcher.Constraint("Horizontal", 0))
sketch17.addConstraint(Sketcher.Constraint("Vertical", 1))
sketch17.addConstraint(Sketcher.Constraint("Horizontal", 2))
sketch17.addConstraint(Sketcher.Constraint("Vertical", 3))
sketch17.addConstraint(Sketcher.Constraint("DistanceX", 0, 2, 0, 1, Q("18 mm")))
sketch17.addConstraint(Sketcher.Constraint("DistanceY", 1, 1, 1, 2, Q("5 mm")))
sketch17.addConstraint(Sketcher.Constraint("DistanceX", -1, 1, 0, 2, Q("14 mm")))
sketch17.addConstraint(Sketcher.Constraint("DistanceY", -1, 1, 0, 2, Q("7.5 mm")))
pad12 = doc.addObject("PartDesign::Pad", "Pad011")
body.addObject(pad12)
pad12.Profile = sketch17
pad12.Length = 10

sketch18 = doc.addObject("Sketcher::SketchObject", "Sketch017")
body.addObject(sketch18)
sketch18.AttachmentSupport = (doc.XY_Plane, [""])
sketch18.MapMode = "FlatFace"
sketch18.AttachmentOffset = App.Placement(Vector(0, 0, 12.5), App.Rotation())
sketch18.addGeometry(Part.LineSegment(Vector(18.25, 20.5, 0), Vector(18.25, 6.5, 0)), False)
sketch18.addGeometry(Part.LineSegment(Vector(18.25, 6.5, 0), Vector(26, 6.5, 0)), False)
sketch18.addGeometry(Part.LineSegment(Vector(26, 6.5, 0), Vector(26, 20.5, 0)), False)
sketch18.addGeometry(Part.LineSegment(Vector(26, 20.5, 0), Vector(18.25, 20.5, 0)), False)
sketch18.addConstraint(Sketcher.Constraint("Coincident", 0, 2, 1, 1))
sketch18.addConstraint(Sketcher.Constraint("Coincident", 1, 2, 2, 1))
sketch18.addConstraint(Sketcher.Constraint("Coincident", 2, 2, 3, 1))
sketch18.addConstraint(Sketcher.Constraint("Coincident", 3, 2, 0, 1))
sketch18.addConstraint(Sketcher.Constraint("Vertical", 0))
sketch18.addConstraint(Sketcher.Constraint("Horizontal", 1))
sketch18.addConstraint(Sketcher.Constraint("Vertical", 2))
sketch18.addConstraint(Sketcher.Constraint("Horizontal", 3))
sketch18.addConstraint(Sketcher.Constraint("DistanceY", 0, 2, 0, 1, Q("14 mm")))
sketch18.addConstraint(Sketcher.Constraint("DistanceX", -1, 1, 1, 2, Q("26 mm")))
sketch18.addConstraint(Sketcher.Constraint("DistanceX", 1, 1, 1, 2, Q("7.75 mm")))
sketch18.addConstraint(Sketcher.Constraint("DistanceY", -1, 1, 0, 2, Q("6.5 mm")))
pad13 = doc.addObject("PartDesign::Pad", "Pad012")
body.addObject(pad13)
pad13.Profile = sketch18
pad13.Length = 5
pad13.Reversed = True

sketch19 = doc.addObject("Sketcher::SketchObject", "Sketch018")
body.addObject(sketch19)
sketch19.AttachmentSupport = (doc.YZ_Plane, [""])
sketch19.MapMode = "FlatFace"
sketch19.AttachmentOffset = App.Placement(Vector(0, 0, -27.5), App.Rotation())
sketch19.addGeometry(Part.LineSegment(Vector(30, -11.5, 0), Vector(10, -11.5, 0)), False)
sketch19.addGeometry(Part.LineSegment(Vector(10, -11.5, 0), Vector(10, 2.5, 0)), False)
sketch19.addGeometry(Part.LineSegment(Vector(10, 2.5, 0), Vector(30, 2.5, 0)), False)
sketch19.addGeometry(Part.LineSegment(Vector(30, 2.5, 0), Vector(30, -11.5, 0)), False)
sketch19.addConstraint(Sketcher.Constraint("Coincident", 0, 2, 1, 1))
sketch19.addConstraint(Sketcher.Constraint("Coincident", 1, 2, 2, 1))
sketch19.addConstraint(Sketcher.Constraint("Coincident", 2, 2, 3, 1))
sketch19.addConstraint(Sketcher.Constraint("Coincident", 3, 2, 0, 1))
sketch19.addConstraint(Sketcher.Constraint("Horizontal", 0))
sketch19.addConstraint(Sketcher.Constraint("Vertical", 1))
sketch19.addConstraint(Sketcher.Constraint("Horizontal", 2))
sketch19.addConstraint(Sketcher.Constraint("Vertical", 3))
sketch19.addConstraint(Sketcher.Constraint("DistanceX", 0, 2, 0, 1, Q("20 mm")))
sketch19.addConstraint(Sketcher.Constraint("DistanceY", 1, 1, 1, 2, Q("14 mm")))
sketch19.addConstraint(Sketcher.Constraint("DistanceX", -1, 1, 0, 2, Q("10 mm")))
sketch19.addConstraint(Sketcher.Constraint("DistanceY", 0, 2, -1, 1, Q("11.5 mm")))
pocket6 = doc.addObject("PartDesign::Pocket", "Pocket005")
body.addObject(pocket6)
pocket6.Profile = sketch19
pocket6.Length = 8
pocket6.Reversed = True

sketch20 = doc.addObject("Sketcher::SketchObject", "Sketch019")
body.addObject(sketch20)
sketch20.AttachmentSupport = (doc.YZ_Plane, [""])
sketch20.MapMode = "FlatFace"
sketch20.AttachmentOffset = App.Placement(Vector(0, 0, -27.5), App.Rotation())
sketch20.addGeometry(Part.LineSegment(Vector(30, 2.5, 0), Vector(10, 2.5, 0)), False)
sketch20.addGeometry(Part.LineSegment(Vector(10, 2.5, 0), Vector(10, 4.5, 0)), False)
sketch20.addGeometry(Part.LineSegment(Vector(10, 4.5, 0), Vector(30, 4.5, 0)), False)
sketch20.addGeometry(Part.LineSegment(Vector(30, 4.5, 0), Vector(30, 2.5, 0)), False)
sketch20.addConstraint(Sketcher.Constraint("Coincident", 0, 2, 1, 1))
sketch20.addConstraint(Sketcher.Constraint("Coincident", 1, 2, 2, 1))
sketch20.addConstraint(Sketcher.Constraint("Coincident", 2, 2, 3, 1))
sketch20.addConstraint(Sketcher.Constraint("Coincident", 3, 2, 0, 1))
sketch20.addConstraint(Sketcher.Constraint("Horizontal", 0))
sketch20.addConstraint(Sketcher.Constraint("Vertical", 1))
sketch20.addConstraint(Sketcher.Constraint("Horizontal", 2))
sketch20.addConstraint(Sketcher.Constraint("Vertical", 3))
sketch20.addConstraint(Sketcher.Constraint("DistanceX", 0, 2, 0, 1, Q("20 mm")))
sketch20.addConstraint(Sketcher.Constraint("DistanceY", 1, 1, 1, 2, Q("2 mm")))
sketch20.addConstraint(Sketcher.Constraint("DistanceX", -1, 1, 0, 2, Q("10 mm")))
sketch20.addConstraint(Sketcher.Constraint("DistanceY", -1, 1, 0, 2, Q("2.5 mm")))
pad14 = doc.addObject("PartDesign::Pad", "Pad013")
body.addObject(pad14)
pad14.Profile = sketch20
pad14.Length = 10

doc.recompute()
